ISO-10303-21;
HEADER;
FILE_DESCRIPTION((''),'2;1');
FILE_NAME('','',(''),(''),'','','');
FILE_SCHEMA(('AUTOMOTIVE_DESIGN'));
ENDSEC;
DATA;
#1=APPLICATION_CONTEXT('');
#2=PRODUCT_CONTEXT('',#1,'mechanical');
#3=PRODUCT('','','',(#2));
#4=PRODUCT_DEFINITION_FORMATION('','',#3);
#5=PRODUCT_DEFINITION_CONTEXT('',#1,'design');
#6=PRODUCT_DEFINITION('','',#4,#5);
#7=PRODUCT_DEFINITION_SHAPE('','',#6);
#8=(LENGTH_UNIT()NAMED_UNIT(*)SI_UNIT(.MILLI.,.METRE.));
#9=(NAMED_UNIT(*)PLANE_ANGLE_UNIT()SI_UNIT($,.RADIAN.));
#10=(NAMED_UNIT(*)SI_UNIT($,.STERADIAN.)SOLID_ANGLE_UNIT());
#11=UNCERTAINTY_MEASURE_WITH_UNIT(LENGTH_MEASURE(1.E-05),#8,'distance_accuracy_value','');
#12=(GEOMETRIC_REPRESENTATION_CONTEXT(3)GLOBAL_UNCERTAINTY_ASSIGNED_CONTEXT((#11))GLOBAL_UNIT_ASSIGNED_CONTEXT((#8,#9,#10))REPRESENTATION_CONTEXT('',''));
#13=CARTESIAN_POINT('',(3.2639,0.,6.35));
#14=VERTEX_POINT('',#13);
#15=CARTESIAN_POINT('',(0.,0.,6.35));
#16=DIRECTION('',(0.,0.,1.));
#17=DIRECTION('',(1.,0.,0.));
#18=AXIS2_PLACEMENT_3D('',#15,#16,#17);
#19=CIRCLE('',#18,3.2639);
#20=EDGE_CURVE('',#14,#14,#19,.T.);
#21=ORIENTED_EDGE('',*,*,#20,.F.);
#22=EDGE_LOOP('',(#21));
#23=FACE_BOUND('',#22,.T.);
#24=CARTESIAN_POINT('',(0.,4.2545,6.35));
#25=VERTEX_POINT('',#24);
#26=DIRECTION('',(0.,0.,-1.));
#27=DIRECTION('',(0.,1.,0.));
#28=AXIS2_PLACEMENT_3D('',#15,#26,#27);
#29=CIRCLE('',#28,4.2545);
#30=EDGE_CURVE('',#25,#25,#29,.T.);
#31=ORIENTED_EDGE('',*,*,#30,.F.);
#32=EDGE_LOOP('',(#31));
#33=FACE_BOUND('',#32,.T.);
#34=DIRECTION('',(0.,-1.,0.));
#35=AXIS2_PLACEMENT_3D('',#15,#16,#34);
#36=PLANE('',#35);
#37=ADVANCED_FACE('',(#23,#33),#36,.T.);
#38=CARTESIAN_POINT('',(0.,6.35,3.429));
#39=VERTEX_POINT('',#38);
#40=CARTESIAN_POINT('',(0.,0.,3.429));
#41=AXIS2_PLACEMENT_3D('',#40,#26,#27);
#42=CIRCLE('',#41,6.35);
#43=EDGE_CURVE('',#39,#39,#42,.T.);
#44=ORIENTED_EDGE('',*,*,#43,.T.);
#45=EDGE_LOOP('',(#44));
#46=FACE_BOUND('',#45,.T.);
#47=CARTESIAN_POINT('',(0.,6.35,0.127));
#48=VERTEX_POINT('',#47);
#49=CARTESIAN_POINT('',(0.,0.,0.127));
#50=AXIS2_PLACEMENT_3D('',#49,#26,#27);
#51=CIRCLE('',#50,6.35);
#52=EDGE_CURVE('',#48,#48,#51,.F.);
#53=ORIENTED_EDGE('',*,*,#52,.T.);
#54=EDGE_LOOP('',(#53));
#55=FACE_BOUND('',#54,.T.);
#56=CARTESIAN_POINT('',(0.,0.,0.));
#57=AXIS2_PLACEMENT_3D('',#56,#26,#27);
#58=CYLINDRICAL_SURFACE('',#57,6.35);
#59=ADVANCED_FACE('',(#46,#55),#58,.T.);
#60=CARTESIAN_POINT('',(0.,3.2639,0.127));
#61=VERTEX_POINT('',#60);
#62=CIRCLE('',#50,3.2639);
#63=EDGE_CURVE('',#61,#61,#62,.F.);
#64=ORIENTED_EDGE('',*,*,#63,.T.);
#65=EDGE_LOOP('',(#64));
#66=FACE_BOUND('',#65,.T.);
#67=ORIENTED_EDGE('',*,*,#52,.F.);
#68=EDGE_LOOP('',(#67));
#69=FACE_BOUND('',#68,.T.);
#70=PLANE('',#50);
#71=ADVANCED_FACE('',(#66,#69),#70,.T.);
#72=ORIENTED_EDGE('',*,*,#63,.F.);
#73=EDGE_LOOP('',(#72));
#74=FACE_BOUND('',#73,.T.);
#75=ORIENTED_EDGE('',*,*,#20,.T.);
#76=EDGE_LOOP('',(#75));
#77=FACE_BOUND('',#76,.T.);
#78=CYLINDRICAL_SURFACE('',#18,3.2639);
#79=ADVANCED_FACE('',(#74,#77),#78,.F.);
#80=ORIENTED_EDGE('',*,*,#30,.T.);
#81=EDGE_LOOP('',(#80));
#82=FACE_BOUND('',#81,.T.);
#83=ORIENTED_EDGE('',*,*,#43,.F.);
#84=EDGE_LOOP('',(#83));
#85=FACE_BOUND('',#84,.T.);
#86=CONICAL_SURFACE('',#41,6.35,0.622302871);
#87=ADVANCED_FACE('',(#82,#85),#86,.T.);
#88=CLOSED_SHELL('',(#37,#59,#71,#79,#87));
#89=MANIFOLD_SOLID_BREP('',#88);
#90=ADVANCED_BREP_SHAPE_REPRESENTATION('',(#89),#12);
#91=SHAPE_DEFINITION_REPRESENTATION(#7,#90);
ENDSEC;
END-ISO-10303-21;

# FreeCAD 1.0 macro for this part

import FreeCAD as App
import Part
import Sketcher
Q = App.Units.Quantity

doc = App.newDocument("Part")
params = doc.addObject("Spreadsheet::Sheet", "Params")
for row, (alias, value) in enumerate([
    ("sketch1_width", "0.25 in"),
    ("sketch1_height", "0.135 in"),
    ("revolution_angle", "360 deg"),
    ("sketch2_diameter", "0.257 in"),
    ("hole_diameter", "0.257 in"),
    ("sketch3_width", "0.5 in"),
    ("pocket1_length", "0.005 in"),
], start=1):
    params.set(f"A{row}", alias)
    params.set(f"B{row}", "=" + value)
    params.setAlias(f"B{row}", alias)

body = doc.addObject("PartDesign::Body", "Body")

sketch1 = body.newObject("Sketcher::SketchObject", "Sketch")
sketch1.AttachmentSupport = (doc.getObject("YZ_Plane"), [""])
sketch1.MapMode = "FlatFace"
sketch1.addGeometry(Part.LineSegment(App.Vector(4.3, 6.3, 0), App.Vector(0, 6.3, 0)), False)
sketch1.addGeometry(Part.LineSegment(App.Vector(0, 6.3, 0), App.Vector(0, 0, 0)), False)
sketch1.addGeometry(Part.LineSegment(App.Vector(0, 0, 0), App.Vector(6.3, 0, 0)), False)
sketch1.addGeometry(Part.LineSegment(App.Vector(6.3, 0, 0), App.Vector(6.3, 3.4, 0)), False)
sketch1.addGeometry(Part.LineSegment(App.Vector(6.3, 3.4, 0), App.Vector(4.3, 6.3, 0)), False)
sketch1.addConstraint(Sketcher.Constraint("Coincident", 0, 2, 1, 1))
sketch1.addConstraint(Sketcher.Constraint("Coincident", 1, 2, 2, 1))
sketch1.addConstraint(Sketcher.Constraint("Coincident", 2, 2, 3, 1))
sketch1.addConstraint(Sketcher.Constraint("Coincident", 3, 2, 4, 1))
sketch1.addConstraint(Sketcher.Constraint("Coincident", 4, 2, 0, 1))
sketch1.addConstraint(Sketcher.Constraint("Horizontal", 0))
sketch1.addConstraint(Sketcher.Constraint("Vertical", 1))
sketch1.addConstraint(Sketcher.Constraint("Horizontal", 2))
sketch1.addConstraint(Sketcher.Constraint("Vertical", 3))
sketch1.addConstraint(Sketcher.Constraint("Coincident", 1, 2, -1, 1))
sketch1.addConstraint(Sketcher.Constraint("Equal", 2, 1))
sketch1.addConstraint(Sketcher.Constraint("DistanceX", 2, 1, 2, 2, Q("0.25 in")))
sketch1.addConstraint(Sketcher.Constraint("DistanceY", 3, 1, 3, 2, Q("0.135 in")))
sketch1.addConstraint(Sketcher.Constraint("DistanceX", 0, 2, 0, 1, Q("0.1675 in")))
sketch1.setExpression("Constraints[11]", "Params.sketch1_width")
sketch1.setExpression("Constraints[12]", "Params.sketch1_height")
revolution = body.newObject("PartDesign::Revolution", "Revolution")
revolution.Profile = sketch1
revolution.ReferenceAxis = (sketch1, ["V_Axis"])
revolution.setExpression("Angle", "Params.revolution_angle")

sketch2 = body.newObject("Sketcher::SketchObject", "Sketch001")
sketch2.AttachmentSupport = (doc.getObject("XY_Plane"), [""])
sketch2.MapMode = "FlatFace"
sketch2.AttachmentOffset = App.Placement(App.Vector(0, 0, 0.25 * 25.4), App.Rotation())
sketch2.addGeometry(Part.Circle(App.Vector(0, 0, 0), App.Vector(0, 0, 1), 3.3), False)
sketch2.addConstraint(Sketcher.Constraint("Coincident", 0, 3, -1, 1))
sketch2.addConstraint(Sketcher.Constraint("Diameter", 0, Q("0.257 in")))
sketch2.setExpression("Constraints[1]", "Params.sketch2_diameter")
doc.recompute()
hole = body.newObject("PartDesign::Hole", "Hole")
hole.Profile = sketch2
hole.ThreadType = "None"
hole.setExpression("Diameter", "Params.hole_diameter")
hole.DepthType = "ThroughAll"

sketch3 = body.newObject("Sketcher::SketchObject", "Sketch002")
sketch3.AttachmentSupport = (doc.getObject("XY_Plane"), [""])
sketch3.MapMode = "FlatFace"
sketch3.addGeometry(Part.LineSegment(App.Vector(6, 6, 0), App.Vector(6, -6, 0)), False)
sketch3.addGeometry(Part.LineSegment(App.Vector(6, -6, 0), App.Vector(-6, -6, 0)), False)
sketch3.addGeometry(Part.LineSegment(App.Vector(-6, -6, 0), App.Vector(-6, 6, 0)), False)
sketch3.addGeometry(Part.LineSegment(App.Vector(-6, 6, 0), App.Vector(6, 6, 0)), False)
sketch3.addConstraint(Sketcher.Constraint("Coincident", 0, 2, 1, 1))
sketch3.addConstraint(Sketcher.Constraint("Coincident", 1, 2, 2, 1))
sketch3.addConstraint(Sketcher.Constraint("Coincident", 2, 2, 3, 1))
sketch3.addConstraint(Sketcher.Constraint("Coincident", 3, 2, 0, 1))
sketch3.addConstraint(Sketcher.Constraint("Vertical", 0))
sketch3.addConstraint(Sketcher.Constraint("Horizontal", 1))
sketch3.addConstraint(Sketcher.Constraint("Vertical", 2))
sketch3.addConstraint(Sketcher.Constraint("Horizontal", 3))
sketch3.addConstraint(Sketcher.Constraint("Symmetric", 0, 2, 2, 2, -1, 1))
sketch3.addConstraint(Sketcher.Constraint("Equal", 3, 0))
sketch3.addConstraint(Sketcher.Constraint("DistanceX", 1, 2, 1, 1, Q("0.5 in")))
sketch3.setExpression("Constraints[10]", "Params.sketch3_width")
pocket1 = body.newObject("PartDesign::Pocket", "Pocket")
pocket1.Profile = sketch3
pocket1.setExpression("Length", "Params.pocket1_length")
pocket1.Reversed = True

doc.recompute()
